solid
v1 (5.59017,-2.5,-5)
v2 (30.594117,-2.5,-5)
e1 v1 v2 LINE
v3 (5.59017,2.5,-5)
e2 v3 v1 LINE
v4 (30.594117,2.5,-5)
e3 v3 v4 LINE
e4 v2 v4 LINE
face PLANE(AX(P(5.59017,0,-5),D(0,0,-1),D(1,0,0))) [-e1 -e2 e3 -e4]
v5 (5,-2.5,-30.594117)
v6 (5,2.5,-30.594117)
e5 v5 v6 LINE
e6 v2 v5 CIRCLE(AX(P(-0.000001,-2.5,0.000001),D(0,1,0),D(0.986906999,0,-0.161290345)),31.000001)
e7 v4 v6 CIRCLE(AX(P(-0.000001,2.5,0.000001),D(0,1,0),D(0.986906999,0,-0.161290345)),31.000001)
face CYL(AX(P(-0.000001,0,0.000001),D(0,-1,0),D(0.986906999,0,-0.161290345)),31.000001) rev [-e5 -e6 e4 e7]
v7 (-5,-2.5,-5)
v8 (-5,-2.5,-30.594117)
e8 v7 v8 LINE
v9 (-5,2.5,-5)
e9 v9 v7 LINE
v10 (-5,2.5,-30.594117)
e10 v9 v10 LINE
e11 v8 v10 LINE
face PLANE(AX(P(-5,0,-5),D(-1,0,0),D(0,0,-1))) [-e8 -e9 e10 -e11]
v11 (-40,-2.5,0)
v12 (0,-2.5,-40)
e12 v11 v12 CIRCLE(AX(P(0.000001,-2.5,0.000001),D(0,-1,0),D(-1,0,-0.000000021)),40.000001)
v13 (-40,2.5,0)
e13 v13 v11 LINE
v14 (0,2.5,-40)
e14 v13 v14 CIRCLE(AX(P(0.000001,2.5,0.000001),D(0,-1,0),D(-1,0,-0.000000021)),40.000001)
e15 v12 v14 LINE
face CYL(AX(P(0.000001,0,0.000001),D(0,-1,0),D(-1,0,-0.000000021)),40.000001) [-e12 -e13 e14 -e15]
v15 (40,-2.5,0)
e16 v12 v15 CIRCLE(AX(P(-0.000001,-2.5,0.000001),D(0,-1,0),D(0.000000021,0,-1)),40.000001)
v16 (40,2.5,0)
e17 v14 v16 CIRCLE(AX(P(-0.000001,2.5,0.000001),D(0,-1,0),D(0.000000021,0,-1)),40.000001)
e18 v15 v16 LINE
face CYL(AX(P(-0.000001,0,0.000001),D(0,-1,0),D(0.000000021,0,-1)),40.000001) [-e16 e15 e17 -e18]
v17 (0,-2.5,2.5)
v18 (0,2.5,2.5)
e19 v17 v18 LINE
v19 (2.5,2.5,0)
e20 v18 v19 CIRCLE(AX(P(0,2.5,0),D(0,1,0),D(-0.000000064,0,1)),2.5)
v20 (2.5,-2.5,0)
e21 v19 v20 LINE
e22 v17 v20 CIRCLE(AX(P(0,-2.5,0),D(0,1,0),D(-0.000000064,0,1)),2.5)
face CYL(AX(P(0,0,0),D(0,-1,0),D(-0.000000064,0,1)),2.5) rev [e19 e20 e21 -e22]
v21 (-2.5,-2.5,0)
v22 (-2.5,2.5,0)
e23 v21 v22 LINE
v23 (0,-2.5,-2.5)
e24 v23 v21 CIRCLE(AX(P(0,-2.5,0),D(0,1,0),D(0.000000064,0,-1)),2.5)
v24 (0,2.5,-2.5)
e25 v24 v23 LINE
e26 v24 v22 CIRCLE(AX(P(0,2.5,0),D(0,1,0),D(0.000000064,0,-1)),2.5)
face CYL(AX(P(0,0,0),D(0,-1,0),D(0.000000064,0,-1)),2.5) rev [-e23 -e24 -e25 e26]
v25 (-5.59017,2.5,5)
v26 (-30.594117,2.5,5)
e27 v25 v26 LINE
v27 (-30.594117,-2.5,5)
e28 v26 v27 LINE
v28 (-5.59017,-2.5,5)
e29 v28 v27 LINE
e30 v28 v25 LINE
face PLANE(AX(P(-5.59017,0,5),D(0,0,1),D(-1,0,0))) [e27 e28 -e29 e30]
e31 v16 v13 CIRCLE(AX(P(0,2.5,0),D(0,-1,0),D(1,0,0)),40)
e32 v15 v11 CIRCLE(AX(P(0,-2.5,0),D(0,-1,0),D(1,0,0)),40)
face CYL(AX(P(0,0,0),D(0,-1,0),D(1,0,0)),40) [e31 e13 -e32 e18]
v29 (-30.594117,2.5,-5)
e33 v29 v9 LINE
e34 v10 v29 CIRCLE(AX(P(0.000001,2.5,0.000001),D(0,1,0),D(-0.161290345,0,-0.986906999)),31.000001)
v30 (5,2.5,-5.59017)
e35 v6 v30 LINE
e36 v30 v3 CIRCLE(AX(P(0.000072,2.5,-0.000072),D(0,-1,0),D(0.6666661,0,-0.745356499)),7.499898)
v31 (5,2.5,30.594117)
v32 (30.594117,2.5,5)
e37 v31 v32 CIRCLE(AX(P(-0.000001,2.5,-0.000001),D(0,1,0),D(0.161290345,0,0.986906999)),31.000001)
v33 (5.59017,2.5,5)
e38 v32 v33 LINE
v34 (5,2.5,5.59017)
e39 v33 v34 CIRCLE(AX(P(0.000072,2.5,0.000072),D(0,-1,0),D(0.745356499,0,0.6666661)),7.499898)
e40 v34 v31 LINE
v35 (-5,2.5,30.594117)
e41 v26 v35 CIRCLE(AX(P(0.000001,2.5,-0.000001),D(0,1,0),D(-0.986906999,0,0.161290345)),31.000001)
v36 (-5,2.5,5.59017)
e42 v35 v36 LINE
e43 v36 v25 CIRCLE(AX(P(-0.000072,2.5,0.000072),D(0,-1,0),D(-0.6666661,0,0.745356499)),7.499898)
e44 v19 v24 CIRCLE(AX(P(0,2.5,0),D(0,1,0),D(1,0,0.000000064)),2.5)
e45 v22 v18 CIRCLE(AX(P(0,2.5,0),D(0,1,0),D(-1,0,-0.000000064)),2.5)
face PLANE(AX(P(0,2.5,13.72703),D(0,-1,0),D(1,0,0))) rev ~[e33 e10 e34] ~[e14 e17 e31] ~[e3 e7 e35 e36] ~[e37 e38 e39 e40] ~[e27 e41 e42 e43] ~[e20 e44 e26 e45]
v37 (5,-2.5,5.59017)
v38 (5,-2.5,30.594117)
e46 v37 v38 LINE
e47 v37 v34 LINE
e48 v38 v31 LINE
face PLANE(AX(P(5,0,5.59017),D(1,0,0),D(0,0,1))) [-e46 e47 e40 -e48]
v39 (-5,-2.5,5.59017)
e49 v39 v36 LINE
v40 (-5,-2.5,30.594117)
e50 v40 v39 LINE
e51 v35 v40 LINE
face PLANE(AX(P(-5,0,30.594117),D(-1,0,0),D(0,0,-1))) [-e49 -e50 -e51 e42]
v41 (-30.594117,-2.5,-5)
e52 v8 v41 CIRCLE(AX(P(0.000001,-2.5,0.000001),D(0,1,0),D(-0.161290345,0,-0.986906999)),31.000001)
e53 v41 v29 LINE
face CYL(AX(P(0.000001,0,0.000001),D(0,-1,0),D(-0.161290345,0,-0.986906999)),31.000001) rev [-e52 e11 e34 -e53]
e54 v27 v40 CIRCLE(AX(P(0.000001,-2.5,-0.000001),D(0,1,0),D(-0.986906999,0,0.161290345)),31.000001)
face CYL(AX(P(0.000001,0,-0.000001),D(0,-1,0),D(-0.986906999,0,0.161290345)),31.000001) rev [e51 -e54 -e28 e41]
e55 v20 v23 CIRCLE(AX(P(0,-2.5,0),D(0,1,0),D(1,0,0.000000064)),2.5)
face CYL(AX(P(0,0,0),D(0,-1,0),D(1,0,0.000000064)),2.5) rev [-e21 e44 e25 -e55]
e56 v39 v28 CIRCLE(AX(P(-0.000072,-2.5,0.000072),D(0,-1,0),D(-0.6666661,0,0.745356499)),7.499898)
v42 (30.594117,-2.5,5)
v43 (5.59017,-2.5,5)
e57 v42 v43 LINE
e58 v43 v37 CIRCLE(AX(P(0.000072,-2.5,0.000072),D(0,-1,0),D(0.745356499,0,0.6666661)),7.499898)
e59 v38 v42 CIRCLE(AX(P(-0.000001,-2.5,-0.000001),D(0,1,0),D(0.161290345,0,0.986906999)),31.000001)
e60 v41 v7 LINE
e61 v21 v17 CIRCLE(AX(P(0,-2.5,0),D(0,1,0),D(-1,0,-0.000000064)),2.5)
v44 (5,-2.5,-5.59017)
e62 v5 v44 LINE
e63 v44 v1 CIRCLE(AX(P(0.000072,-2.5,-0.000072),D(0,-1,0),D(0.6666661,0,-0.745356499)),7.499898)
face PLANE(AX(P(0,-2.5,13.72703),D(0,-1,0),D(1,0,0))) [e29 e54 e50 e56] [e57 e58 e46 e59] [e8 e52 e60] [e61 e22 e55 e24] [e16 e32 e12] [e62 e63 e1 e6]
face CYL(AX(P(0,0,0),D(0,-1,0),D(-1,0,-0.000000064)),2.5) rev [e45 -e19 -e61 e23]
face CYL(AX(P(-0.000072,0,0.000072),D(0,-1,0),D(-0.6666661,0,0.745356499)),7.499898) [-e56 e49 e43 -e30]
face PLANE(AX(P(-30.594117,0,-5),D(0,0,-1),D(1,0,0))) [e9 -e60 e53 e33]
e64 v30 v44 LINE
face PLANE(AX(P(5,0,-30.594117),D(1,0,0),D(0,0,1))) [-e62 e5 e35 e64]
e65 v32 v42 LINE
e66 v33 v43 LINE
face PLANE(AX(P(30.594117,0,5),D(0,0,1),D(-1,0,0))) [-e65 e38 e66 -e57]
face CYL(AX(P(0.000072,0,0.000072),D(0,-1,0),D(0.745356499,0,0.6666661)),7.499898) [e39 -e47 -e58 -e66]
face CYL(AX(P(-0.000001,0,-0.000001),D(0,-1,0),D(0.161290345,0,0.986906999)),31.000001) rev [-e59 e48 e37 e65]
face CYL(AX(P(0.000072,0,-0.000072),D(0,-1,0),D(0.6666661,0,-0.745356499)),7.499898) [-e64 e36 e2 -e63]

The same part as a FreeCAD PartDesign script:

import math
import FreeCAD as App
import Part
import Sketcher

V = App.Vector

doc = App.newDocument("Part")
body = doc.addObject("PartDesign::Body", "Body")

sketch1 = body.newObject("Sketcher::SketchObject", "Sketch")
sketch1.AttachmentSupport = (doc.getObject("XZ_Plane"), [""])
sketch1.MapMode = "FlatFace"
sketch1.addGeometry([
    Part.ArcOfCircle(Part.Circle(V(0, 0, 0), V(0, 0, 1), 40), math.radians(0), math.radians(180)),
    Part.ArcOfCircle(Part.Circle(V(0.000001, 0.000001, 0), V(0, 0, 1), 40.000001), math.radians(-179.999999), math.radians(-90.000001)),
    Part.ArcOfCircle(Part.Circle(V(-0.000001, 0.000001, 0), V(0, 0, 1), 40.000001), math.radians(-89.999999), math.radians(-0.000001)),
    Part.LineSegment(V(-30.594117, -5, 0), V(-5, -5, 0)),
    Part.LineSegment(V(-5, -5, 0), V(-5, -30.594117, 0)),
    Part.ArcOfCircle(Part.Circle(V(0.000001, 0.000001, 0), V(0, 0, 1), 31.000001), math.radians(-170.7182), math.radians(-99.2818)),
    Part.ArcOfCircle(Part.Circle(V(0, 0, 0), V(0, 0, 1), 2.5), math.radians(-0.000004), math.radians(90.000004)),
    Part.ArcOfCircle(Part.Circle(V(0, 0, 0), V(0, 0, 1), 2.5), math.radians(-90.000004), math.radians(0.000004)),
    Part.ArcOfCircle(Part.Circle(V(0, 0, 0), V(0, 0, 1), 2.5), math.radians(179.999996), math.radians(270.000004)),
    Part.ArcOfCircle(Part.Circle(V(0, 0, 0), V(0, 0, 1), 2.5), math.radians(89.999996), math.radians(180.000004)),
    Part.LineSegment(V(5, -30.594117, 0), V(5, -5.59017, 0)),
    Part.ArcOfCircle(Part.Circle(V(0.000072, -0.000072, 0), V(0, 0, 1), 7.499898), math.radians(-48.189729), math.radians(-41.810271)),
    Part.LineSegment(V(5.59017, -5, 0), V(30.594117, -5, 0)),
    Part.ArcOfCircle(Part.Circle(V(-0.000001, 0.000001, 0), V(0, 0, 1), 31.000001), math.radians(-80.7182), math.radians(-9.2818)),
    Part.LineSegment(V(-5.59017, 5, 0), V(-30.594117, 5, 0)),
    Part.ArcOfCircle(Part.Circle(V(0.000001, -0.000001, 0), V(0, 0, 1), 31.000001), math.radians(99.2818), math.radians(170.7182)),
    Part.LineSegment(V(-5, 30.594117, 0), V(-5, 5.59017, 0)),
    Part.ArcOfCircle(Part.Circle(V(-0.000072, 0.000072, 0), V(0, 0, 1), 7.499898), math.radians(131.810271), math.radians(138.189729)),
    Part.ArcOfCircle(Part.Circle(V(-0.000001, -0.000001, 0), V(0, 0, 1), 31.000001), math.radians(9.2818), math.radians(80.7182)),
    Part.LineSegment(V(30.594117, 5, 0), V(5.59017, 5, 0)),
    Part.ArcOfCircle(Part.Circle(V(0.000072, 0.000072, 0), V(0, 0, 1), 7.499898), math.radians(41.810271), math.radians(48.189729)),
    Part.LineSegment(V(5, 5.59017, 0), V(5, 30.594117, 0)),
], False)
sketch1.addConstraint([
    Sketcher.Constraint("Tangent", 0, 2, 1, 1),
    Sketcher.Constraint("Tangent", 1, 2, 2, 1),
    Sketcher.Constraint("Tangent", 2, 2, 0, 1),
    Sketcher.Constraint("Coincident", 3, 2, 4, 1),
    Sketcher.Constraint("Coincident", 4, 2, 5, 2),
    Sketcher.Constraint("Coincident", 5, 1, 3, 1),
    Sketcher.Constraint("Tangent", 6, 1, 7, 2),
    Sketcher.Constraint("Tangent", 7, 1, 8, 2),
    Sketcher.Constraint("Tangent", 8, 1, 9, 2),
    Sketcher.Constraint("Tangent", 9, 1, 6, 2),
    Sketcher.Constraint("Coincident", 10, 2, 11, 1),
    Sketcher.Constraint("Coincident", 11, 2, 12, 1),
    Sketcher.Constraint("Coincident", 12, 2, 13, 2),
    Sketcher.Constraint("Coincident", 13, 1, 10, 1),
    Sketcher.Constraint("Coincident", 14, 2, 15, 2),
    Sketcher.Constraint("Coincident", 15, 1, 16, 1),
    Sketcher.Constraint("Coincident", 16, 2, 17, 1),
    Sketcher.Constraint("Coincident", 17, 2, 14, 1),
    Sketcher.Constraint("Coincident", 18, 1, 19, 1),
    Sketcher.Constraint("Coincident", 19, 2, 20, 1),
    Sketcher.Constraint("Coincident", 20, 2, 21, 1),
    Sketcher.Constraint("Coincident", 21, 2, 18, 2),
    Sketcher.Constraint("Horizontal", 3),
    Sketcher.Constraint("Vertical", 4),
    Sketcher.Constraint("Vertical", 10),
    Sketcher.Constraint("Horizontal", 12),
    Sketcher.Constraint("Horizontal", 14),
    Sketcher.Constraint("Vertical", 16),
    Sketcher.Constraint("Horizontal", 19),
    Sketcher.Constraint("Vertical", 21),
    Sketcher.Constraint("Coincident", 0, 3, -1, 1),
    Sketcher.Constraint("Coincident", 5, 3, -1, 1),
    Sketcher.Constraint("Coincident", 6, 3, -1, 1),
    Sketcher.Constraint("Coincident", 13, 3, -1, 1),
    Sketcher.Constraint("Coincident", 15, 3, -1, 1),
    Sketcher.Constraint("Coincident", 18, 3, -1, 1),
    Sketcher.Constraint("Equal", 6, 7),
    Sketcher.Constraint("Equal", 5, 13),
    Sketcher.Constraint("Equal", 13, 15),
    Sketcher.Constraint("Equal", 11, 17),
    Sketcher.Constraint("Equal", 15, 18),
    Sketcher.Constraint("Equal", 17, 20),
    Sketcher.Constraint("Symmetric", 11, 3, 17, 3, -1, 1),
    Sketcher.Constraint("Symmetric", 17, 3, 20, 3, -2),
    Sketcher.Constraint("PointOnObject", 0, 2, -1),
    Sketcher.Constraint("PointOnObject", 1, 2, -2),
    Sketcher.Constraint("PointOnObject", 2, 2, -1),
    Sketcher.Constraint("PointOnObject", 6, 1, -1),
    Sketcher.Constraint("PointOnObject", 7, 1, -2),
    Sketcher.Constraint("PointOnObject", 8, 1, -1),
    Sketcher.Constraint("PointOnObject", 9, 1, -2),
    Sketcher.Constraint("Horizontal", 5, 1, 11, 2),
    Sketcher.Constraint("Horizontal", 4, 2, 13, 1),
    Sketcher.Constraint("Horizontal", 17, 2, 18, 1),
    Sketcher.Constraint("Horizontal", 16, 2, 20, 2),
    Sketcher.Constraint("Vertical", 5, 1, 14, 2),
    Sketcher.Constraint("Vertical", 4, 2, 15, 1),
    Sketcher.Constraint("Equal", 3, 4),
    Sketcher.Constraint("Equal", 19, 10),
    Sketcher.Constraint("Radius", 0, 40.0),
    Sketcher.Constraint("Radius", 5, 31.000001),
    Sketcher.Constraint("Radius", 6, 2.5),
    Sketcher.Constraint("DistanceX", 3, 2, -1, 1, 5.0),
    Sketcher.Constraint("Radius", 11, 7.499898),
    Sketcher.Constraint("DistanceY", 10, 2, 11, 3, 5.590098),
])
pad1 = body.newObject("PartDesign::Pad", "Pad")
pad1.Profile = sketch1
pad1.Length = 5
pad1.Midplane = True

doc.recompute()
